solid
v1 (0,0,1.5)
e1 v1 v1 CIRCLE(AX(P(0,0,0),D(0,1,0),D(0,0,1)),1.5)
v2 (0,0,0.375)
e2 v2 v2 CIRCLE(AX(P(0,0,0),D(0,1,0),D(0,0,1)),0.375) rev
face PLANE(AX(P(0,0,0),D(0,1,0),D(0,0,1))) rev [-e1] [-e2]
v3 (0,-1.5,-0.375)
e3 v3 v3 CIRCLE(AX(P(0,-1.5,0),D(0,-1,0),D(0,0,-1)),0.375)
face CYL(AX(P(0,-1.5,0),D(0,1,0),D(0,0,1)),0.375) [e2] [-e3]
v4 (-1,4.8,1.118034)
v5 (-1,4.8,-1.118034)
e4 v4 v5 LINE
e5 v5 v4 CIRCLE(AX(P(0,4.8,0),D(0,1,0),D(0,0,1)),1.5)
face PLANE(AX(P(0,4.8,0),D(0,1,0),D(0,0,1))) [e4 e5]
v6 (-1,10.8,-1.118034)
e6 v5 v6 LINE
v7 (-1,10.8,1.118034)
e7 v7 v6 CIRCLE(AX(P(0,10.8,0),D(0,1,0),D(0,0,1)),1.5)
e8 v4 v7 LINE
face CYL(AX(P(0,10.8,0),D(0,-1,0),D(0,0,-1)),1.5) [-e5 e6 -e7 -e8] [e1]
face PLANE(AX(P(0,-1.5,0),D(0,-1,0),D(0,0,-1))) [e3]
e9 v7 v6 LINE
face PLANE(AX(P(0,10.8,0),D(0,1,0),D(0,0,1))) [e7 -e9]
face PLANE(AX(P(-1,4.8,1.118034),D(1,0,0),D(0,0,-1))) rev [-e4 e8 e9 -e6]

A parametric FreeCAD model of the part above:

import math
import FreeCAD as App
import Part
import Sketcher
from FreeCAD import Vector

doc = App.newDocument("Part")
body = doc.addObject("PartDesign::Body", "Body")

# Sketch on XZ plane
sketch1 = body.newObject("Sketcher::SketchObject", "Sketch")
sketch1.AttachmentSupport = (doc.getObject("XZ_Plane"), [""])
sketch1.MapMode = "FlatFace"
sketch1.addGeometry(Part.Circle(Vector(0, 0, 0), Vector(0, 0, 1), 1.5), False)
sketch1.addConstraint([
    Sketcher.Constraint("Coincident", 0, 3, -1, 1),
    Sketcher.Constraint("Diameter", 0, 3.0),
])
pad1 = body.newObject("PartDesign::Pad", "Pad")
pad1.Profile = sketch1
pad1.Length = 10.8
pad1.Reversed = True

# Sketch on XZ plane
sketch2 = body.newObject("Sketcher::SketchObject", "Sketch001")
sketch2.AttachmentSupport = (doc.getObject("XZ_Plane"), [""])
sketch2.MapMode = "FlatFace"
sketch2.AttachmentOffset = App.Placement(Vector(0, 0, -4.8), App.Rotation())
sketch2.addGeometry([
    Part.LineSegment(Vector(-1, 1.1, 0), Vector(-1, -1.1, 0)),
    Part.ArcOfCircle(Part.Circle(Vector(0, 0, 0), Vector(0, 0, 1), 1.5), math.radians(132), math.radians(228)),
], False)
sketch2.addConstraint([
    Sketcher.Constraint("Coincident", 0, 1, 1, 1),
    Sketcher.Constraint("Coincident", 1, 2, 0, 2),
    Sketcher.Constraint("Vertical", 0),
    Sketcher.Constraint("Coincident", 1, 3, -1, 1),
    Sketcher.Constraint("Radius", 1, 1.5),
    Sketcher.Constraint("DistanceX", 0, 1, -1, 1, 1.0),
])
pocket1 = body.newObject("PartDesign::Pocket", "Pocket")
pocket1.Profile = sketch2
pocket1.Length = 6

# Sketch on XZ plane
sketch3 = body.newObject("Sketcher::SketchObject", "Sketch002")
sketch3.AttachmentSupport = (doc.getObject("XZ_Plane"), [""])
sketch3.MapMode = "FlatFace"
sketch3.addGeometry(Part.Circle(Vector(0, 0, 0), Vector(0, 0, 1), 0.38), False)
sketch3.addConstraint([
    Sketcher.Constraint("Coincident", 0, 3, -1, 1),
    Sketcher.Constraint("Diameter", 0, 0.75),
])
pad2 = body.newObject("PartDesign::Pad", "Pad001")
pad2.Profile = sketch3
pad2.Length = 1.5

doc.recompute()
